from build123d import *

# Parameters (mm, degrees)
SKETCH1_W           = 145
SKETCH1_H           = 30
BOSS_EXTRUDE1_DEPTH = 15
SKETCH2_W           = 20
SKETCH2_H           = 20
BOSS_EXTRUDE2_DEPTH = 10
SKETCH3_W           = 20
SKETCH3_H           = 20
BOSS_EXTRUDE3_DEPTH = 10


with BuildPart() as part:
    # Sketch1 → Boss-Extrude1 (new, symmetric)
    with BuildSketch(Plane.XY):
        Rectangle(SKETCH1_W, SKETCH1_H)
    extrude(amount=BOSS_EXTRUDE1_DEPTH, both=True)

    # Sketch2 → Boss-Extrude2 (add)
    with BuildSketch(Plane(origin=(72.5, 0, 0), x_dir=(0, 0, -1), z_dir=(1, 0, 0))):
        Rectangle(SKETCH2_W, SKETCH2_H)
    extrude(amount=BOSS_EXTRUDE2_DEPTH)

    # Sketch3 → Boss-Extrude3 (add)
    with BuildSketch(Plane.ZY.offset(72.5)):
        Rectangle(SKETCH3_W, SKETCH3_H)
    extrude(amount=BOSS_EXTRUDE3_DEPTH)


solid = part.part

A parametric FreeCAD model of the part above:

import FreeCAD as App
import Part
import Sketcher

V = App.Vector


def add_polygon(sketch, points):
    """Adds a closed chain of lines whose ends are joined by coincident constraints."""
    first, n = sketch.GeometryCount, len(points)
    for a, b in zip(points, points[1:] + points[:1]):
        sketch.addGeometry(Part.LineSegment(App.Vector(*a, 0), App.Vector(*b, 0)), False)
    for i in range(n):
        sketch.addConstraint(Sketcher.Constraint("Coincident", first + i, 2, first + (i + 1) % n, 1))

doc = App.newDocument("Part")
body = doc.addObject("PartDesign::Body", "Body")

# Sketch on XY plane
sketch1 = body.newObject("Sketcher::SketchObject", "Sketch")
sketch1.AttachmentSupport = (doc.getObject("XY_Plane"), [""])
sketch1.MapMode = "FlatFace"
add_polygon(sketch1, [(-72, 15), (-72, -15), (72, -15), (72, 15)])  # lines 0-3
sketch1.addConstraint(Sketcher.Constraint("Vertical", 0))
sketch1.addConstraint(Sketcher.Constraint("Horizontal", 1))
sketch1.addConstraint(Sketcher.Constraint("Vertical", 2))
sketch1.addConstraint(Sketcher.Constraint("Horizontal", 3))
sketch1.addConstraint(Sketcher.Constraint("Symmetric", 0, 2, 2, 2, -1, 1))
sketch1.addConstraint(Sketcher.Constraint("DistanceX", 1, 1, 1, 2, 145.0))
sketch1.addConstraint(Sketcher.Constraint("DistanceY", 0, 2, 0, 1, 30.0))
pad1 = body.newObject("PartDesign::Pad", "Pad")
pad1.Profile = sketch1
pad1.Length = 30
pad1.Midplane = True

# Sketch on YZ plane
sketch2 = body.newObject("Sketcher::SketchObject", "Sketch001")
sketch2.AttachmentSupport = (doc.getObject("YZ_Plane"), [""])
sketch2.MapMode = "FlatFace"
sketch2.AttachmentOffset = App.Placement(V(0, 0, 72.5), App.Rotation())
add_polygon(sketch2, [(10, 10), (-10, 10), (-10, -10), (10, -10)])  # lines 0-3
sketch2.addConstraint(Sketcher.Constraint("Horizontal", 0))
sketch2.addConstraint(Sketcher.Constraint("Vertical", 1))
sketch2.addConstraint(Sketcher.Constraint("Horizontal", 2))
sketch2.addConstraint(Sketcher.Constraint("Vertical", 3))
sketch2.addConstraint(Sketcher.Constraint("Symmetric", 0, 2, 2, 2, -1, 1))
sketch2.addConstraint(Sketcher.Constraint("Equal", 2, 1))
sketch2.addConstraint(Sketcher.Constraint("DistanceX", 0, 2, 0, 1, 20.0))
pad2 = body.newObject("PartDesign::Pad", "Pad001")
pad2.Profile = sketch2
pad2.Length = 10

# Sketch on YZ plane
sketch3 = body.newObject("Sketcher::SketchObject", "Sketch002")
sketch3.AttachmentSupport = (doc.getObject("YZ_Plane"), [""])
sketch3.MapMode = "FlatFace"
sketch3.AttachmentOffset = App.Placement(V(0, 0, -72.5), App.Rotation())
add_polygon(sketch3, [(10, -10), (-10, -10), (-10, 10), (10, 10)])  # lines 0-3
sketch3.addConstraint(Sketcher.Constraint("Horizontal", 0))
sketch3.addConstraint(Sketcher.Constraint("Vertical", 1))
sketch3.addConstraint(Sketcher.Constraint("Horizontal", 2))
sketch3.addConstraint(Sketcher.Constraint("Vertical", 3))
sketch3.addConstraint(Sketcher.Constraint("Symmetric", 0, 2, 2, 2, -1, 1))
sketch3.addConstraint(Sketcher.Constraint("Equal", 2, 1))
sketch3.addConstraint(Sketcher.Constraint("DistanceX", 0, 2, 0, 1, 20.0))
pad3 = body.newObject("PartDesign::Pad", "Pad002")
pad3.Profile = sketch3
pad3.Length = 10
pad3.Reversed = True

doc.recompute()
